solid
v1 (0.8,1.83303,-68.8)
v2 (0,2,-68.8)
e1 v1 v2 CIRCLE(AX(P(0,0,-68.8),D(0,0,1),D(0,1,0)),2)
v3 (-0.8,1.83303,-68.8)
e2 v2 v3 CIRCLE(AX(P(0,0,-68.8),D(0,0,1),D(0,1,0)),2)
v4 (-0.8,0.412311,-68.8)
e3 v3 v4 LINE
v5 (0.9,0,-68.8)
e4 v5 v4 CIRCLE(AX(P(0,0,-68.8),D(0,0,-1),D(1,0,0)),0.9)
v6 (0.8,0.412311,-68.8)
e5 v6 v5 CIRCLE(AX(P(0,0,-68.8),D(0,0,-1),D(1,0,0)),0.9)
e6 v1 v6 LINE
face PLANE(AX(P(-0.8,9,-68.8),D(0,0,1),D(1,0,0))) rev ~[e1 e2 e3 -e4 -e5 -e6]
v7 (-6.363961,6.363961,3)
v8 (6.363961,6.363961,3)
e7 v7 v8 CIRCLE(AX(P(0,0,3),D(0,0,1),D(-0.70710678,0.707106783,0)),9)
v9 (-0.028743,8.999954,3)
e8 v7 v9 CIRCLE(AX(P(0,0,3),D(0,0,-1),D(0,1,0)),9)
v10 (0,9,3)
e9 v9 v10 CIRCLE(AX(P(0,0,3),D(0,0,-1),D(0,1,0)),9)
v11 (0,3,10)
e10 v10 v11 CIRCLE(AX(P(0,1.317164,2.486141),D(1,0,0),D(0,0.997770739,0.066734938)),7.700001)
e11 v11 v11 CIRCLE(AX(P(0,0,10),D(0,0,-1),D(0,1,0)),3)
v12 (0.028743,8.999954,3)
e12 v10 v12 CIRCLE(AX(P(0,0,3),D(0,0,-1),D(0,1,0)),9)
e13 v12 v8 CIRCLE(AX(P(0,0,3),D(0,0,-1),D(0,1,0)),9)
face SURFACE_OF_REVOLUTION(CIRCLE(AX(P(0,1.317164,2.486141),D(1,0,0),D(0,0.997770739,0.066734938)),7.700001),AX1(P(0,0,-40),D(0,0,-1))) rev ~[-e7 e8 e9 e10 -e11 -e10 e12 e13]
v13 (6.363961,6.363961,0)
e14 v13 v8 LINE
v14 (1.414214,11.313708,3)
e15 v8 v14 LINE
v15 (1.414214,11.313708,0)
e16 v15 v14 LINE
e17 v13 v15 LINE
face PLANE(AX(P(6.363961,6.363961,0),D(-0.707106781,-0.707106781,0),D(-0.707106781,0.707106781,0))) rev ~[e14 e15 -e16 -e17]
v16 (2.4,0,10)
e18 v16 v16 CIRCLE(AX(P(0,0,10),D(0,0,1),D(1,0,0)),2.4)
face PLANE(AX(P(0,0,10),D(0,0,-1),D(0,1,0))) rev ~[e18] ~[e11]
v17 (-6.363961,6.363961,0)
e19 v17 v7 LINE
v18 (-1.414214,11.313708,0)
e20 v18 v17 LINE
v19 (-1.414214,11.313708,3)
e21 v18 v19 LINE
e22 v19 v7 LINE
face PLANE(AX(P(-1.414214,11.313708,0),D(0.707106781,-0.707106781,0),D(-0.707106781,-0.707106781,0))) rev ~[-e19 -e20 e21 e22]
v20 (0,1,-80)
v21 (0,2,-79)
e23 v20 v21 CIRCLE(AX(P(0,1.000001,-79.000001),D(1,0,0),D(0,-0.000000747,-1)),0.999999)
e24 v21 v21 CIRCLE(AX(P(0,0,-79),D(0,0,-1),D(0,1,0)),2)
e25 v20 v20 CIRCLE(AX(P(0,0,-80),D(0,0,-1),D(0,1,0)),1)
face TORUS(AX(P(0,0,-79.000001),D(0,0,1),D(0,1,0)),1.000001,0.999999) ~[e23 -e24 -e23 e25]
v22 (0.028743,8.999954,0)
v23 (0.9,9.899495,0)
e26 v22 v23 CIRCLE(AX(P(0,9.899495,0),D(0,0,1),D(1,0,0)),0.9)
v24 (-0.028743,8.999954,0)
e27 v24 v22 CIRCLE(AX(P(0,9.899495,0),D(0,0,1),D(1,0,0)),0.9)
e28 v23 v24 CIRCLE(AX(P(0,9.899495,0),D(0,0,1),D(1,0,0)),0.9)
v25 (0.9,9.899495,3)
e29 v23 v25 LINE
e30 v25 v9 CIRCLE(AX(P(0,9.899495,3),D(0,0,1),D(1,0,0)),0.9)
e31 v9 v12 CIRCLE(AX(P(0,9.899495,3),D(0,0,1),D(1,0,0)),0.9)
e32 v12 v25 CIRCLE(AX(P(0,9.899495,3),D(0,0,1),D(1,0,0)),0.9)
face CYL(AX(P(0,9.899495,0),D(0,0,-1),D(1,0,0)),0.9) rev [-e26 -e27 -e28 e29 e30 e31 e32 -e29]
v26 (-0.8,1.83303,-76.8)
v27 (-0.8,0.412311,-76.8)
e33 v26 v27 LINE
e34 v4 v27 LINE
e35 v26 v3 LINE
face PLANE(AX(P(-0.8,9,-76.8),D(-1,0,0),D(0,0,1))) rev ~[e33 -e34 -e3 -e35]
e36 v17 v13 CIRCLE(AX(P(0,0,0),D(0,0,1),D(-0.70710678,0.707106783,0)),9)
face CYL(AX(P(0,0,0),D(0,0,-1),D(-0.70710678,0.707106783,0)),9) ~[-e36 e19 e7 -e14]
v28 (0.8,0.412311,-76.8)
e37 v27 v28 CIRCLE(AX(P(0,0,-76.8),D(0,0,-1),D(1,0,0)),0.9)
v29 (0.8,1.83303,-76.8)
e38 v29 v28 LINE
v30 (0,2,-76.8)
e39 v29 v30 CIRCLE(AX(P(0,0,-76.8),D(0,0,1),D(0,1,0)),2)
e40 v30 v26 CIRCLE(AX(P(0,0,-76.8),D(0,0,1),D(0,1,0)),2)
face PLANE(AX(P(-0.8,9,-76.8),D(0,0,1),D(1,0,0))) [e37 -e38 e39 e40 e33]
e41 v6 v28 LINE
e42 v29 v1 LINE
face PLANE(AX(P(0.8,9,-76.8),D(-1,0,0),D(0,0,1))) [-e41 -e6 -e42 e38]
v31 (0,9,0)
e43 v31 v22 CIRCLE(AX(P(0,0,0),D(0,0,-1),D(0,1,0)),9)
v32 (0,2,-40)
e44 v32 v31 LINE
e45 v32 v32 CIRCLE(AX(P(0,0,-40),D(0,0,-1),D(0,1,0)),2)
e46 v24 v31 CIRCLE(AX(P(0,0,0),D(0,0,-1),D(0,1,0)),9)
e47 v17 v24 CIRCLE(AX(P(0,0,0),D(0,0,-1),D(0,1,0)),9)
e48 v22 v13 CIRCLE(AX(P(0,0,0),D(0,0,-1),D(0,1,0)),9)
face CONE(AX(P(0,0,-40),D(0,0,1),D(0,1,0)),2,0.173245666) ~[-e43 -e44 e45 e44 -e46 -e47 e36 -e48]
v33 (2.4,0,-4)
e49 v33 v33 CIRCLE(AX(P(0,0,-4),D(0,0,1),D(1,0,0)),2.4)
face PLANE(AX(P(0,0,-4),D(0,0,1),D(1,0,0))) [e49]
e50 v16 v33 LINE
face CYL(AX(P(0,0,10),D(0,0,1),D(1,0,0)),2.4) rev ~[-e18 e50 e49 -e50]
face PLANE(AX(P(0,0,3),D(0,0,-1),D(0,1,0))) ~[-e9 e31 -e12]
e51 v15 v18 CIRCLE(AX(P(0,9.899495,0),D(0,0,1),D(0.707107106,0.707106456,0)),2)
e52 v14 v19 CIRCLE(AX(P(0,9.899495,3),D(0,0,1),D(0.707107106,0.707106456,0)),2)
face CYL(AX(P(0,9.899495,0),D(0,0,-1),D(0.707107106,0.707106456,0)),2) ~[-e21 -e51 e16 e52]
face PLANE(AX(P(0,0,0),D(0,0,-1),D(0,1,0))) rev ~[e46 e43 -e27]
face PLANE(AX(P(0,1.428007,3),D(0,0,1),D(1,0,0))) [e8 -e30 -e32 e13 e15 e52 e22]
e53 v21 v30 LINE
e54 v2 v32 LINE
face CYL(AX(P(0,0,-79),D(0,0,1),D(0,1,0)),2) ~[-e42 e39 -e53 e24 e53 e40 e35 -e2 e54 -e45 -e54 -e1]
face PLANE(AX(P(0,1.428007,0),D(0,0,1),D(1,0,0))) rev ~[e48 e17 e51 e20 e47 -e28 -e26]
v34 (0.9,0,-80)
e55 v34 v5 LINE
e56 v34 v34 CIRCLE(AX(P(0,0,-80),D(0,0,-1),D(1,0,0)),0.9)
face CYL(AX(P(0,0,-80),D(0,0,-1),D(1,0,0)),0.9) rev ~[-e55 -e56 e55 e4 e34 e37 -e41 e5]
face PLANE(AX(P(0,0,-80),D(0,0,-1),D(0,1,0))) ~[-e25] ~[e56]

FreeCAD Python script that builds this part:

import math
import FreeCAD as App
import Part
import Sketcher

V = App.Vector


def add_polygon(sketch, points):
    """Adds a closed chain of lines whose ends are joined by coincident constraints."""
    first, n = sketch.GeometryCount, len(points)
    for a, b in zip(points, points[1:] + points[:1]):
        sketch.addGeometry(Part.LineSegment(App.Vector(*a, 0), App.Vector(*b, 0)), False)
    for i in range(n):
        sketch.addConstraint(Sketcher.Constraint("Coincident", first + i, 2, first + (i + 1) % n, 1))

doc = App.newDocument("Part")
params = doc.addObject("Spreadsheet::Sheet", "Params")
for row, (alias, value) in enumerate([
    ("sketch1_radius", "9 mm"),
    ("sketch1_radius2", "2 mm"),
    ("sketch1_diameter", "1.8 mm"),
    ("pad1_length", "3 mm"),
    ("sketch2_radius", "0.999999 mm"),
    ("sketch2_radius2", "7.700001 mm"),
    ("sketch2_width", "9 mm"),
    ("sketch2_width2", "3 mm"),
    ("sketch2_width3", "1 mm"),
    ("revolution_angle", "360 deg"),
    ("sketch3_height", "8 mm"),
    ("sketch3_width", "1.6 mm"),
    ("pocket1_length", "9 mm"),
    ("sketch4_diameter", "1.8 mm"),
    ("pocket2_length", "11.2 mm"),
    ("sketch5_diameter", "4.8 mm"),
    ("pocket3_length", "14 mm"),
], start=1):
    params.set(f"A{row}", alias)
    params.set(f"B{row}", "=" + value)
    params.setAlias(f"B{row}", alias)

body = doc.addObject("PartDesign::Body", "Body")

sketch1 = body.newObject("Sketcher::SketchObject", "Sketch")
sketch1.AttachmentSupport = (doc.getObject("XY_Plane"), [""])
sketch1.MapMode = "FlatFace"
sketch1.addGeometry([
    Part.LineSegment(V(-1.4, 11.3, 0), V(-6.4, 6.4, 0)),
    Part.ArcOfCircle(Part.Circle(V(0, 0, 0), V(0, 0, 1), 9), math.radians(135), math.radians(405)),
    Part.LineSegment(V(6.4, 6.4, 0), V(1.4, 11.3, 0)),
    Part.ArcOfCircle(Part.Circle(V(0, 9.9, 0), V(0, 0, 1), 2), math.radians(45), math.radians(135)),
    Part.Circle(V(0, 9.9, 0), V(0, 0, 1), 0.9),
], False)
sketch1.addConstraint([
    Sketcher.Constraint("Tangent", 0, 2, 1, 1),
    Sketcher.Constraint("Tangent", 1, 2, 2, 1),
    Sketcher.Constraint("Tangent", 2, 2, 3, 1),
    Sketcher.Constraint("Tangent", 3, 2, 0, 1),
    Sketcher.Constraint("Coincident", 1, 3, -1, 1),
    Sketcher.Constraint("Coincident", 4, 3, 3, 3),
    Sketcher.Constraint("PointOnObject", 3, 3, -2),
    Sketcher.Constraint("Perpendicular", 0, 2),
    Sketcher.Constraint("Radius", 1, 9.0),
    Sketcher.Constraint("Radius", 3, 2.0),
    Sketcher.Constraint("Diameter", 4, 1.8),
])
sketch1.setExpression("Constraints[8]", "Params.sketch1_radius")
sketch1.setExpression("Constraints[9]", "Params.sketch1_radius2")
sketch1.setExpression("Constraints[10]", "Params.sketch1_diameter")
pad1 = body.newObject("PartDesign::Pad", "Pad")
pad1.Profile = sketch1
pad1.setExpression("Length", "Params.pad1_length")

sketch2 = body.newObject("Sketcher::SketchObject", "Sketch001")
sketch2.AttachmentSupport = (doc.getObject("YZ_Plane"), [""])
sketch2.MapMode = "FlatFace"
sketch2.addGeometry([
    Part.LineSegment(V(0, 10, 0), V(0, 3, 0)),
    Part.LineSegment(V(0, 3, 0), V(9, 3, 0)),
    Part.ArcOfCircle(Part.Circle(V(1.3, 2.5, 0), V(0, 0, 1), 7.7), math.radians(4), math.radians(77)),
    Part.LineSegment(V(3, 10, 0), V(0, 10, 0)),
    Part.LineSegment(V(9, 0, 0), V(0, 0, 0)),
    Part.LineSegment(V(0, 0, 0), V(0, -80, 0)),
    Part.LineSegment(V(0, -80, 0), V(1, -80, 0)),
    Part.ArcOfCircle(Part.Circle(V(1, -79, 0), V(0, 0, 1), 1), math.radians(-90), math.radians(0)),
    Part.LineSegment(V(2, -79, 0), V(2, -40, 0)),
    Part.LineSegment(V(2, -40, 0), V(9, 0, 0)),
], False)
sketch2.addConstraint([
    Sketcher.Constraint("Coincident", 0, 2, 1, 1),
    Sketcher.Constraint("Coincident", 1, 2, 2, 1),
    Sketcher.Constraint("Coincident", 2, 2, 3, 1),
    Sketcher.Constraint("Coincident", 3, 2, 0, 1),
    Sketcher.Constraint("Coincident", 4, 2, 5, 1),
    Sketcher.Constraint("Coincident", 5, 2, 6, 1),
    Sketcher.Constraint("Tangent", 6, 2, 7, 1),
    Sketcher.Constraint("Tangent", 7, 2, 8, 1),
    Sketcher.Constraint("Coincident", 8, 2, 9, 1),
    Sketcher.Constraint("Coincident", 9, 2, 4, 1),
    Sketcher.Constraint("Vertical", 0),
    Sketcher.Constraint("Horizontal", 1),
    Sketcher.Constraint("Horizontal", 3),
    Sketcher.Constraint("Horizontal", 4),
    Sketcher.Constraint("Vertical", 5),
    Sketcher.Constraint("Horizontal", 6),
    Sketcher.Constraint("Vertical", 8),
    Sketcher.Constraint("Coincident", 4, 2, -1, 1),
    Sketcher.Constraint("PointOnObject", 0, 2, -2),
    Sketcher.Constraint("Vertical", 1, 2, 9, 2),
    Sketcher.Constraint("Radius", 7, 0.999999),
    Sketcher.Constraint("Radius", 2, 7.700001),
    Sketcher.Constraint("DistanceX", 1, 1, 1, 2, 9.0),
    Sketcher.Constraint("DistanceX", 3, 2, 3, 1, 3.0),
    Sketcher.Constraint("DistanceX", 6, 1, 6, 2, 1.0),
    Sketcher.Constraint("DistanceY", 0, 2, 0, 1, 7.0),
    Sketcher.Constraint("DistanceY", 5, 2, 5, 1, 80.0),
    Sketcher.Constraint("DistanceY", 8, 1, 8, 2, 39.0),
    Sketcher.Constraint("DistanceY", -1, 1, 0, 2, 3.0),
])
sketch2.setExpression("Constraints[20]", "Params.sketch2_radius")
sketch2.setExpression("Constraints[21]", "Params.sketch2_radius2")
sketch2.setExpression("Constraints[22]", "Params.sketch2_width")
sketch2.setExpression("Constraints[23]", "Params.sketch2_width2")
sketch2.setExpression("Constraints[24]", "Params.sketch2_width3")
revolution = body.newObject("PartDesign::Revolution", "Revolution")
revolution.Profile = sketch2
revolution.ReferenceAxis = (sketch2, ["V_Axis"])
revolution.setExpression("Angle", "Params.revolution_angle")

sketch3 = body.newObject("Sketcher::SketchObject", "Sketch002")
sketch3.AttachmentSupport = (doc.getObject("XZ_Plane"), [""])
sketch3.MapMode = "FlatFace"
sketch3.AttachmentOffset = App.Placement(V(0, 0, -9), App.Rotation())
add_polygon(sketch3, [(-0.8, -68.8), (-0.8, -76.8), (0.8, -76.8), (0.8, -68.8)])
sketch3.addConstraint([
    Sketcher.Constraint("Vertical", 0),
    Sketcher.Constraint("Horizontal", 1),
    Sketcher.Constraint("Vertical", 2),
    Sketcher.Constraint("Horizontal", 3),
    Sketcher.Constraint("DistanceY", 0, 2, 0, 1, 8.0),
    Sketcher.Constraint("DistanceX", 1, 1, 1, 2, 1.6),
    Sketcher.Constraint("DistanceX", 0, 2, -1, 1, 0.8),
    Sketcher.Constraint("DistanceY", 0, 2, -1, 1, 76.8),
])
sketch3.setExpression("Constraints[8]", "Params.sketch3_height")
sketch3.setExpression("Constraints[9]", "Params.sketch3_width")
pocket1 = body.newObject("PartDesign::Pocket", "Pocket")
pocket1.Profile = sketch3
pocket1.setExpression("Length", "Params.pocket1_length")
pocket1.Reversed = True

sketch4 = body.newObject("Sketcher::SketchObject", "Sketch003")
sketch4.AttachmentSupport = (doc.getObject("XY_Plane"), [""])
sketch4.MapMode = "FlatFace"
sketch4.AttachmentOffset = App.Placement(V(0, 0, -80), App.Rotation())
sketch4.addGeometry(Part.Circle(V(0, 0, 0), V(0, 0, 1), 0.9), False)
sketch4.addConstraint([
    Sketcher.Constraint("Coincident", 0, 3, -1, 1),
    Sketcher.Constraint("Diameter", 0, 1.8),
])
sketch4.setExpression("Constraints[1]", "Params.sketch4_diameter")
pocket2 = body.newObject("PartDesign::Pocket", "Pocket001")
pocket2.Profile = sketch4
pocket2.setExpression("Length", "Params.pocket2_length")
pocket2.Reversed = True

sketch5 = body.newObject("Sketcher::SketchObject", "Sketch004")
sketch5.AttachmentSupport = (doc.getObject("XY_Plane"), [""])
sketch5.MapMode = "FlatFace"
sketch5.AttachmentOffset = App.Placement(V(0, 0, 10), App.Rotation())
sketch5.addGeometry(Part.Circle(V(0, 0, 0), V(0, 0, 1), 2.4), False)
sketch5.addConstraint([
    Sketcher.Constraint("Coincident", 0, 3, -1, 1),
    Sketcher.Constraint("Diameter", 0, 4.8),
])
sketch5.setExpression("Constraints[1]", "Params.sketch5_diameter")
pocket3 = body.newObject("PartDesign::Pocket", "Pocket002")
pocket3.Profile = sketch5
pocket3.setExpression("Length", "Params.pocket3_length")

doc.recompute()
